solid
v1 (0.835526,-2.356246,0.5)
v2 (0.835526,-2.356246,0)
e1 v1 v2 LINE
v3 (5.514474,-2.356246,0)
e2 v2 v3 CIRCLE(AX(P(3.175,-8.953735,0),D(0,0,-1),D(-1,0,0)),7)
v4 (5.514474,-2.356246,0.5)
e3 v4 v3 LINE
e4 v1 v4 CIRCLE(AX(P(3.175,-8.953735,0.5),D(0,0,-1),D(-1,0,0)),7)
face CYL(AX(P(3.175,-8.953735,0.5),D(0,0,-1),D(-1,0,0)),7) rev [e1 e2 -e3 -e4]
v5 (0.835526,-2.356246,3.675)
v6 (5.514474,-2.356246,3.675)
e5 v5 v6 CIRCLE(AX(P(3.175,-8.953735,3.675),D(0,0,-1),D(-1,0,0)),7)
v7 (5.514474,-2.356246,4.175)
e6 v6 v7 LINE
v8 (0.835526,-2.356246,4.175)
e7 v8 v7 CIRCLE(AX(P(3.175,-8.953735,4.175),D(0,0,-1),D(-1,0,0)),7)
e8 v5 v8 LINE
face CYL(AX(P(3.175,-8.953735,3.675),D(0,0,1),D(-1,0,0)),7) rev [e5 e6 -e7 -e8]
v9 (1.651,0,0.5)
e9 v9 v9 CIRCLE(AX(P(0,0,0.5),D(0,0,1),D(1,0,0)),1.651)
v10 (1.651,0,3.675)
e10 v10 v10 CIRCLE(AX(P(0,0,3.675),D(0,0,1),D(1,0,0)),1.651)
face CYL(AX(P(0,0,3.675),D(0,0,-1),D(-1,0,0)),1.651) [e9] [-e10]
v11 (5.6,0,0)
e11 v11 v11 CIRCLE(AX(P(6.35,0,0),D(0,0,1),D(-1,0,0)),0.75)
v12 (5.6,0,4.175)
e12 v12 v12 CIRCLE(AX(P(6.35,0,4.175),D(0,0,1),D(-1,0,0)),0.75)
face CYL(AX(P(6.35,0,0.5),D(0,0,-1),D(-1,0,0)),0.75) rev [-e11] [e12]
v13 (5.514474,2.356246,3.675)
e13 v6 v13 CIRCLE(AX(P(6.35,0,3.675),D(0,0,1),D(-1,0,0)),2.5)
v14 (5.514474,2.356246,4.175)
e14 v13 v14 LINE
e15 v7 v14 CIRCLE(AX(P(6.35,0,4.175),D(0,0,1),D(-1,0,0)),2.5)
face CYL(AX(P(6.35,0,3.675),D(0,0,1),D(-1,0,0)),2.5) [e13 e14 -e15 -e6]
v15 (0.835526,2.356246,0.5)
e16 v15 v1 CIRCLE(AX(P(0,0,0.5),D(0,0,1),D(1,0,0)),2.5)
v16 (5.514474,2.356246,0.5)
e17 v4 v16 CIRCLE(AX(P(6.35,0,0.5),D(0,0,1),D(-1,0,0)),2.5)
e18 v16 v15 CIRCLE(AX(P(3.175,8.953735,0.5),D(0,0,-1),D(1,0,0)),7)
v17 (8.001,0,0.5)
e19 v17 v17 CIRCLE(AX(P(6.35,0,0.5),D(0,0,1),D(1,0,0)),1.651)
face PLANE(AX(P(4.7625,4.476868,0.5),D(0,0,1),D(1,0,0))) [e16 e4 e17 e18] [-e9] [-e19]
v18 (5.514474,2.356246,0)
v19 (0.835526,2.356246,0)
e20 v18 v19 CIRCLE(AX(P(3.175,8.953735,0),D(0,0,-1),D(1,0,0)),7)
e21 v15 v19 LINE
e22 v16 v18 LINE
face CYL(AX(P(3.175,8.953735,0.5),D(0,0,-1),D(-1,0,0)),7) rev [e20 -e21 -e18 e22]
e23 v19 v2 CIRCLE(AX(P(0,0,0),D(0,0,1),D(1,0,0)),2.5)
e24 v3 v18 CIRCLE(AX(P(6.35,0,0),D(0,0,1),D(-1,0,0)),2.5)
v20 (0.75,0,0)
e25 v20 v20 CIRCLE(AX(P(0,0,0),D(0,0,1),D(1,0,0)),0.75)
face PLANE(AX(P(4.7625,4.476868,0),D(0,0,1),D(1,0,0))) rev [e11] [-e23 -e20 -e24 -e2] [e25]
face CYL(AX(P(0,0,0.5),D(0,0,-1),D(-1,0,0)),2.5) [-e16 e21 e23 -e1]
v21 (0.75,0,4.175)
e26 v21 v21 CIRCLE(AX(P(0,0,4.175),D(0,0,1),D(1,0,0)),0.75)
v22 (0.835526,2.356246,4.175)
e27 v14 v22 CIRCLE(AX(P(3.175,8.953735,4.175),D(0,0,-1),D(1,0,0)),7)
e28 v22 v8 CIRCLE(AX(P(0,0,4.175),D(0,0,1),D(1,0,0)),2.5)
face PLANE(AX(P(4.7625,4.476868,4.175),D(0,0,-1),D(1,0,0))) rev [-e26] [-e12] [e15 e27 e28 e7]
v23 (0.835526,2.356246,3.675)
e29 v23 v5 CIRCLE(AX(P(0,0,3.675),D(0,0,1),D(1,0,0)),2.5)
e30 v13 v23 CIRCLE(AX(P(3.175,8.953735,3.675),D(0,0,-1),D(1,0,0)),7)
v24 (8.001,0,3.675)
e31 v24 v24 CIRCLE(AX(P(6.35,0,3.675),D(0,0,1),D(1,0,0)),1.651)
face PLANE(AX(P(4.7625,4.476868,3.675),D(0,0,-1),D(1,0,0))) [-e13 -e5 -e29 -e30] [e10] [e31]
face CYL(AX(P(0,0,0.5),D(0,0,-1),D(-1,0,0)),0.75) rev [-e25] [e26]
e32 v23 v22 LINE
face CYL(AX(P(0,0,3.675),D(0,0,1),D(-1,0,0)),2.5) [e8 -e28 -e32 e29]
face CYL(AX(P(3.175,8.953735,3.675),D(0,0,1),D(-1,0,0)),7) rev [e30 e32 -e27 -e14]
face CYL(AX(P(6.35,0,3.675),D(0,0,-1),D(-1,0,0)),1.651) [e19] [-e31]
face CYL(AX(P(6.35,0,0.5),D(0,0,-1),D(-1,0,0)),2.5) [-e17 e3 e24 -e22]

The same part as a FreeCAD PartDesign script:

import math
import FreeCAD as App
import Part
import Sketcher

V = App.Vector

doc = App.newDocument("Part")
params = doc.addObject("Spreadsheet::Sheet", "Params")
for row, (alias, value) in enumerate([
    ("sketch1_radius", "7 mm"),
    ("sketch1_diameter", "1.5 mm"),
    ("sketch1_radius2", "2.5 mm"),
    ("pad1_length", "0.5 mm"),
    ("sketch2_diameter", "1.5 mm"),
    ("pad2_length", "3.175 mm"),
], start=1):
    params.set(f"A{row}", alias)
    params.set(f"B{row}", "=" + value)
    params.setAlias(f"B{row}", alias)

body = doc.addObject("PartDesign::Body", "Body")

sketch1 = doc.addObject("Sketcher::SketchObject", "Sketch")
body.addObject(sketch1)
sketch1.AttachmentSupport = (doc.XY_Plane, [""])
sketch1.MapMode = "FlatFace"
sketch1.addGeometry(Part.ArcOfCircle(Part.Circle(V(0, 0, 0), V(0, 0, 1), 2.5), math.radians(70.475462), math.radians(289.524538)), False)
sketch1.addGeometry(Part.ArcOfCircle(Part.Circle(V(3.175, -8.953735, 0), V(0, 0, 1), 7), math.radians(70.475462), math.radians(109.524538)), False)
sketch1.addGeometry(Part.ArcOfCircle(Part.Circle(V(6.35, 0, 0), V(0, 0, 1), 2.5), math.radians(-109.524538), math.radians(109.524538)), False)
sketch1.addGeometry(Part.ArcOfCircle(Part.Circle(V(3.175, 8.953735, 0), V(0, 0, 1), 7), math.radians(-109.524538), math.radians(-70.475462)), False)
sketch1.addGeometry(Part.Circle(V(0, 0, 0), V(0, 0, 1), 0.75), False)
sketch1.addGeometry(Part.Circle(V(6.35, 0, 0), V(0, 0, 1), 0.75), False)
sketch1.addConstraint(Sketcher.Constraint("Tangent", 0, 2, 1, 2))
sketch1.addConstraint(Sketcher.Constraint("Tangent", 1, 1, 2, 1))
sketch1.addConstraint(Sketcher.Constraint("Tangent", 2, 2, 3, 2))
sketch1.addConstraint(Sketcher.Constraint("Tangent", 3, 1, 0, 1))
sketch1.addConstraint(Sketcher.Constraint("Coincident", 0, 3, -1, 1))
sketch1.addConstraint(Sketcher.Constraint("Coincident", 4, 3, -1, 1))
sketch1.addConstraint(Sketcher.Constraint("Coincident", 5, 3, 2, 3))
sketch1.addConstraint(Sketcher.Constraint("Equal", 0, 2))
sketch1.addConstraint(Sketcher.Constraint("Equal", 1, 3))
sketch1.addConstraint(Sketcher.Constraint("Equal", 4, 5))
sketch1.addConstraint(Sketcher.Constraint("PointOnObject", 2, 3, -1))
sketch1.addConstraint(Sketcher.Constraint("Radius", 1, 7.0))
sketch1.addConstraint(Sketcher.Constraint("Diameter", 4, 1.5))
sketch1.addConstraint(Sketcher.Constraint("Radius", 0, 2.5))
sketch1.addConstraint(Sketcher.Constraint("DistanceX", -1, 1, 2, 3, 6.35))
sketch1.setExpression("Constraints[11]", "Params.sketch1_radius")
sketch1.setExpression("Constraints[12]", "Params.sketch1_diameter")
sketch1.setExpression("Constraints[13]", "Params.sketch1_radius2")
pad1 = doc.addObject("PartDesign::Pad", "Pad")
body.addObject(pad1)
pad1.Profile = sketch1
pad1.setExpression("Length", "Params.pad1_length")

sketch2 = doc.addObject("Sketcher::SketchObject", "Sketch001")
body.addObject(sketch2)
sketch2.AttachmentSupport = (doc.XY_Plane, [""])
sketch2.MapMode = "FlatFace"
sketch2.AttachmentOffset = App.Placement(V(0, 0, 0.5), App.Rotation())
sketch2.addGeometry(Part.Circle(V(6.35, 0, 0), V(0, 0, 1), 1.651), False)
sketch2.addGeometry(Part.Circle(V(6.35, 0, 0), V(0, 0, 1), 0.75), False)
sketch2.addGeometry(Part.Circle(V(0, 0, 0), V(0, 0, 1), 1.651), False)
sketch2.addGeometry(Part.Circle(V(0, 0, 0), V(0, 0, 1), 0.75), False)
sketch2.addConstraint(Sketcher.Constraint("Coincident", 2, 3, -1, 1))
sketch2.addConstraint(Sketcher.Constraint("Coincident", 3, 3, -1, 1))
sketch2.addConstraint(Sketcher.Constraint("Coincident", 1, 3, 0, 3))
sketch2.addConstraint(Sketcher.Constraint("Equal", 0, 2))
sketch2.addConstraint(Sketcher.Constraint("Equal", 1, 3))
sketch2.addConstraint(Sketcher.Constraint("PointOnObject", 0, 3, -1))
sketch2.addConstraint(Sketcher.Constraint("Diameter", 1, 1.5))
sketch2.addConstraint(Sketcher.Constraint("Diameter", 0, 3.302))
sketch2.addConstraint(Sketcher.Constraint("DistanceX", -1, 1, 0, 3, 6.35))
sketch2.setExpression("Constraints[6]", "Params.sketch2_diameter")
pad2 = doc.addObject("PartDesign::Pad", "Pad001")
body.addObject(pad2)
pad2.Profile = sketch2
pad2.setExpression("Length", "Params.pad2_length")
body2 = doc.addObject("PartDesign::Body", "Body001")
doc.recompute()

body2.BaseFeature = body
doc.recompute()

mirroring = doc.addObject("Part::Mirroring", "Mirroring")
mirroring.Source = body
mirroring.Base = V(0, 0, 2.0875)
mirroring.Normal = V(0, 0, 1)
body3 = doc.addObject("PartDesign::Body", "Body002")
body3.BaseFeature = mirroring
boolean = doc.addObject("PartDesign::Boolean", "Boolean")
body2.addObject(boolean)
boolean.Type = "Fuse"
boolean.addObjects([body3])
doc.recompute()
mirroring.Visibility = False

doc.recompute()
